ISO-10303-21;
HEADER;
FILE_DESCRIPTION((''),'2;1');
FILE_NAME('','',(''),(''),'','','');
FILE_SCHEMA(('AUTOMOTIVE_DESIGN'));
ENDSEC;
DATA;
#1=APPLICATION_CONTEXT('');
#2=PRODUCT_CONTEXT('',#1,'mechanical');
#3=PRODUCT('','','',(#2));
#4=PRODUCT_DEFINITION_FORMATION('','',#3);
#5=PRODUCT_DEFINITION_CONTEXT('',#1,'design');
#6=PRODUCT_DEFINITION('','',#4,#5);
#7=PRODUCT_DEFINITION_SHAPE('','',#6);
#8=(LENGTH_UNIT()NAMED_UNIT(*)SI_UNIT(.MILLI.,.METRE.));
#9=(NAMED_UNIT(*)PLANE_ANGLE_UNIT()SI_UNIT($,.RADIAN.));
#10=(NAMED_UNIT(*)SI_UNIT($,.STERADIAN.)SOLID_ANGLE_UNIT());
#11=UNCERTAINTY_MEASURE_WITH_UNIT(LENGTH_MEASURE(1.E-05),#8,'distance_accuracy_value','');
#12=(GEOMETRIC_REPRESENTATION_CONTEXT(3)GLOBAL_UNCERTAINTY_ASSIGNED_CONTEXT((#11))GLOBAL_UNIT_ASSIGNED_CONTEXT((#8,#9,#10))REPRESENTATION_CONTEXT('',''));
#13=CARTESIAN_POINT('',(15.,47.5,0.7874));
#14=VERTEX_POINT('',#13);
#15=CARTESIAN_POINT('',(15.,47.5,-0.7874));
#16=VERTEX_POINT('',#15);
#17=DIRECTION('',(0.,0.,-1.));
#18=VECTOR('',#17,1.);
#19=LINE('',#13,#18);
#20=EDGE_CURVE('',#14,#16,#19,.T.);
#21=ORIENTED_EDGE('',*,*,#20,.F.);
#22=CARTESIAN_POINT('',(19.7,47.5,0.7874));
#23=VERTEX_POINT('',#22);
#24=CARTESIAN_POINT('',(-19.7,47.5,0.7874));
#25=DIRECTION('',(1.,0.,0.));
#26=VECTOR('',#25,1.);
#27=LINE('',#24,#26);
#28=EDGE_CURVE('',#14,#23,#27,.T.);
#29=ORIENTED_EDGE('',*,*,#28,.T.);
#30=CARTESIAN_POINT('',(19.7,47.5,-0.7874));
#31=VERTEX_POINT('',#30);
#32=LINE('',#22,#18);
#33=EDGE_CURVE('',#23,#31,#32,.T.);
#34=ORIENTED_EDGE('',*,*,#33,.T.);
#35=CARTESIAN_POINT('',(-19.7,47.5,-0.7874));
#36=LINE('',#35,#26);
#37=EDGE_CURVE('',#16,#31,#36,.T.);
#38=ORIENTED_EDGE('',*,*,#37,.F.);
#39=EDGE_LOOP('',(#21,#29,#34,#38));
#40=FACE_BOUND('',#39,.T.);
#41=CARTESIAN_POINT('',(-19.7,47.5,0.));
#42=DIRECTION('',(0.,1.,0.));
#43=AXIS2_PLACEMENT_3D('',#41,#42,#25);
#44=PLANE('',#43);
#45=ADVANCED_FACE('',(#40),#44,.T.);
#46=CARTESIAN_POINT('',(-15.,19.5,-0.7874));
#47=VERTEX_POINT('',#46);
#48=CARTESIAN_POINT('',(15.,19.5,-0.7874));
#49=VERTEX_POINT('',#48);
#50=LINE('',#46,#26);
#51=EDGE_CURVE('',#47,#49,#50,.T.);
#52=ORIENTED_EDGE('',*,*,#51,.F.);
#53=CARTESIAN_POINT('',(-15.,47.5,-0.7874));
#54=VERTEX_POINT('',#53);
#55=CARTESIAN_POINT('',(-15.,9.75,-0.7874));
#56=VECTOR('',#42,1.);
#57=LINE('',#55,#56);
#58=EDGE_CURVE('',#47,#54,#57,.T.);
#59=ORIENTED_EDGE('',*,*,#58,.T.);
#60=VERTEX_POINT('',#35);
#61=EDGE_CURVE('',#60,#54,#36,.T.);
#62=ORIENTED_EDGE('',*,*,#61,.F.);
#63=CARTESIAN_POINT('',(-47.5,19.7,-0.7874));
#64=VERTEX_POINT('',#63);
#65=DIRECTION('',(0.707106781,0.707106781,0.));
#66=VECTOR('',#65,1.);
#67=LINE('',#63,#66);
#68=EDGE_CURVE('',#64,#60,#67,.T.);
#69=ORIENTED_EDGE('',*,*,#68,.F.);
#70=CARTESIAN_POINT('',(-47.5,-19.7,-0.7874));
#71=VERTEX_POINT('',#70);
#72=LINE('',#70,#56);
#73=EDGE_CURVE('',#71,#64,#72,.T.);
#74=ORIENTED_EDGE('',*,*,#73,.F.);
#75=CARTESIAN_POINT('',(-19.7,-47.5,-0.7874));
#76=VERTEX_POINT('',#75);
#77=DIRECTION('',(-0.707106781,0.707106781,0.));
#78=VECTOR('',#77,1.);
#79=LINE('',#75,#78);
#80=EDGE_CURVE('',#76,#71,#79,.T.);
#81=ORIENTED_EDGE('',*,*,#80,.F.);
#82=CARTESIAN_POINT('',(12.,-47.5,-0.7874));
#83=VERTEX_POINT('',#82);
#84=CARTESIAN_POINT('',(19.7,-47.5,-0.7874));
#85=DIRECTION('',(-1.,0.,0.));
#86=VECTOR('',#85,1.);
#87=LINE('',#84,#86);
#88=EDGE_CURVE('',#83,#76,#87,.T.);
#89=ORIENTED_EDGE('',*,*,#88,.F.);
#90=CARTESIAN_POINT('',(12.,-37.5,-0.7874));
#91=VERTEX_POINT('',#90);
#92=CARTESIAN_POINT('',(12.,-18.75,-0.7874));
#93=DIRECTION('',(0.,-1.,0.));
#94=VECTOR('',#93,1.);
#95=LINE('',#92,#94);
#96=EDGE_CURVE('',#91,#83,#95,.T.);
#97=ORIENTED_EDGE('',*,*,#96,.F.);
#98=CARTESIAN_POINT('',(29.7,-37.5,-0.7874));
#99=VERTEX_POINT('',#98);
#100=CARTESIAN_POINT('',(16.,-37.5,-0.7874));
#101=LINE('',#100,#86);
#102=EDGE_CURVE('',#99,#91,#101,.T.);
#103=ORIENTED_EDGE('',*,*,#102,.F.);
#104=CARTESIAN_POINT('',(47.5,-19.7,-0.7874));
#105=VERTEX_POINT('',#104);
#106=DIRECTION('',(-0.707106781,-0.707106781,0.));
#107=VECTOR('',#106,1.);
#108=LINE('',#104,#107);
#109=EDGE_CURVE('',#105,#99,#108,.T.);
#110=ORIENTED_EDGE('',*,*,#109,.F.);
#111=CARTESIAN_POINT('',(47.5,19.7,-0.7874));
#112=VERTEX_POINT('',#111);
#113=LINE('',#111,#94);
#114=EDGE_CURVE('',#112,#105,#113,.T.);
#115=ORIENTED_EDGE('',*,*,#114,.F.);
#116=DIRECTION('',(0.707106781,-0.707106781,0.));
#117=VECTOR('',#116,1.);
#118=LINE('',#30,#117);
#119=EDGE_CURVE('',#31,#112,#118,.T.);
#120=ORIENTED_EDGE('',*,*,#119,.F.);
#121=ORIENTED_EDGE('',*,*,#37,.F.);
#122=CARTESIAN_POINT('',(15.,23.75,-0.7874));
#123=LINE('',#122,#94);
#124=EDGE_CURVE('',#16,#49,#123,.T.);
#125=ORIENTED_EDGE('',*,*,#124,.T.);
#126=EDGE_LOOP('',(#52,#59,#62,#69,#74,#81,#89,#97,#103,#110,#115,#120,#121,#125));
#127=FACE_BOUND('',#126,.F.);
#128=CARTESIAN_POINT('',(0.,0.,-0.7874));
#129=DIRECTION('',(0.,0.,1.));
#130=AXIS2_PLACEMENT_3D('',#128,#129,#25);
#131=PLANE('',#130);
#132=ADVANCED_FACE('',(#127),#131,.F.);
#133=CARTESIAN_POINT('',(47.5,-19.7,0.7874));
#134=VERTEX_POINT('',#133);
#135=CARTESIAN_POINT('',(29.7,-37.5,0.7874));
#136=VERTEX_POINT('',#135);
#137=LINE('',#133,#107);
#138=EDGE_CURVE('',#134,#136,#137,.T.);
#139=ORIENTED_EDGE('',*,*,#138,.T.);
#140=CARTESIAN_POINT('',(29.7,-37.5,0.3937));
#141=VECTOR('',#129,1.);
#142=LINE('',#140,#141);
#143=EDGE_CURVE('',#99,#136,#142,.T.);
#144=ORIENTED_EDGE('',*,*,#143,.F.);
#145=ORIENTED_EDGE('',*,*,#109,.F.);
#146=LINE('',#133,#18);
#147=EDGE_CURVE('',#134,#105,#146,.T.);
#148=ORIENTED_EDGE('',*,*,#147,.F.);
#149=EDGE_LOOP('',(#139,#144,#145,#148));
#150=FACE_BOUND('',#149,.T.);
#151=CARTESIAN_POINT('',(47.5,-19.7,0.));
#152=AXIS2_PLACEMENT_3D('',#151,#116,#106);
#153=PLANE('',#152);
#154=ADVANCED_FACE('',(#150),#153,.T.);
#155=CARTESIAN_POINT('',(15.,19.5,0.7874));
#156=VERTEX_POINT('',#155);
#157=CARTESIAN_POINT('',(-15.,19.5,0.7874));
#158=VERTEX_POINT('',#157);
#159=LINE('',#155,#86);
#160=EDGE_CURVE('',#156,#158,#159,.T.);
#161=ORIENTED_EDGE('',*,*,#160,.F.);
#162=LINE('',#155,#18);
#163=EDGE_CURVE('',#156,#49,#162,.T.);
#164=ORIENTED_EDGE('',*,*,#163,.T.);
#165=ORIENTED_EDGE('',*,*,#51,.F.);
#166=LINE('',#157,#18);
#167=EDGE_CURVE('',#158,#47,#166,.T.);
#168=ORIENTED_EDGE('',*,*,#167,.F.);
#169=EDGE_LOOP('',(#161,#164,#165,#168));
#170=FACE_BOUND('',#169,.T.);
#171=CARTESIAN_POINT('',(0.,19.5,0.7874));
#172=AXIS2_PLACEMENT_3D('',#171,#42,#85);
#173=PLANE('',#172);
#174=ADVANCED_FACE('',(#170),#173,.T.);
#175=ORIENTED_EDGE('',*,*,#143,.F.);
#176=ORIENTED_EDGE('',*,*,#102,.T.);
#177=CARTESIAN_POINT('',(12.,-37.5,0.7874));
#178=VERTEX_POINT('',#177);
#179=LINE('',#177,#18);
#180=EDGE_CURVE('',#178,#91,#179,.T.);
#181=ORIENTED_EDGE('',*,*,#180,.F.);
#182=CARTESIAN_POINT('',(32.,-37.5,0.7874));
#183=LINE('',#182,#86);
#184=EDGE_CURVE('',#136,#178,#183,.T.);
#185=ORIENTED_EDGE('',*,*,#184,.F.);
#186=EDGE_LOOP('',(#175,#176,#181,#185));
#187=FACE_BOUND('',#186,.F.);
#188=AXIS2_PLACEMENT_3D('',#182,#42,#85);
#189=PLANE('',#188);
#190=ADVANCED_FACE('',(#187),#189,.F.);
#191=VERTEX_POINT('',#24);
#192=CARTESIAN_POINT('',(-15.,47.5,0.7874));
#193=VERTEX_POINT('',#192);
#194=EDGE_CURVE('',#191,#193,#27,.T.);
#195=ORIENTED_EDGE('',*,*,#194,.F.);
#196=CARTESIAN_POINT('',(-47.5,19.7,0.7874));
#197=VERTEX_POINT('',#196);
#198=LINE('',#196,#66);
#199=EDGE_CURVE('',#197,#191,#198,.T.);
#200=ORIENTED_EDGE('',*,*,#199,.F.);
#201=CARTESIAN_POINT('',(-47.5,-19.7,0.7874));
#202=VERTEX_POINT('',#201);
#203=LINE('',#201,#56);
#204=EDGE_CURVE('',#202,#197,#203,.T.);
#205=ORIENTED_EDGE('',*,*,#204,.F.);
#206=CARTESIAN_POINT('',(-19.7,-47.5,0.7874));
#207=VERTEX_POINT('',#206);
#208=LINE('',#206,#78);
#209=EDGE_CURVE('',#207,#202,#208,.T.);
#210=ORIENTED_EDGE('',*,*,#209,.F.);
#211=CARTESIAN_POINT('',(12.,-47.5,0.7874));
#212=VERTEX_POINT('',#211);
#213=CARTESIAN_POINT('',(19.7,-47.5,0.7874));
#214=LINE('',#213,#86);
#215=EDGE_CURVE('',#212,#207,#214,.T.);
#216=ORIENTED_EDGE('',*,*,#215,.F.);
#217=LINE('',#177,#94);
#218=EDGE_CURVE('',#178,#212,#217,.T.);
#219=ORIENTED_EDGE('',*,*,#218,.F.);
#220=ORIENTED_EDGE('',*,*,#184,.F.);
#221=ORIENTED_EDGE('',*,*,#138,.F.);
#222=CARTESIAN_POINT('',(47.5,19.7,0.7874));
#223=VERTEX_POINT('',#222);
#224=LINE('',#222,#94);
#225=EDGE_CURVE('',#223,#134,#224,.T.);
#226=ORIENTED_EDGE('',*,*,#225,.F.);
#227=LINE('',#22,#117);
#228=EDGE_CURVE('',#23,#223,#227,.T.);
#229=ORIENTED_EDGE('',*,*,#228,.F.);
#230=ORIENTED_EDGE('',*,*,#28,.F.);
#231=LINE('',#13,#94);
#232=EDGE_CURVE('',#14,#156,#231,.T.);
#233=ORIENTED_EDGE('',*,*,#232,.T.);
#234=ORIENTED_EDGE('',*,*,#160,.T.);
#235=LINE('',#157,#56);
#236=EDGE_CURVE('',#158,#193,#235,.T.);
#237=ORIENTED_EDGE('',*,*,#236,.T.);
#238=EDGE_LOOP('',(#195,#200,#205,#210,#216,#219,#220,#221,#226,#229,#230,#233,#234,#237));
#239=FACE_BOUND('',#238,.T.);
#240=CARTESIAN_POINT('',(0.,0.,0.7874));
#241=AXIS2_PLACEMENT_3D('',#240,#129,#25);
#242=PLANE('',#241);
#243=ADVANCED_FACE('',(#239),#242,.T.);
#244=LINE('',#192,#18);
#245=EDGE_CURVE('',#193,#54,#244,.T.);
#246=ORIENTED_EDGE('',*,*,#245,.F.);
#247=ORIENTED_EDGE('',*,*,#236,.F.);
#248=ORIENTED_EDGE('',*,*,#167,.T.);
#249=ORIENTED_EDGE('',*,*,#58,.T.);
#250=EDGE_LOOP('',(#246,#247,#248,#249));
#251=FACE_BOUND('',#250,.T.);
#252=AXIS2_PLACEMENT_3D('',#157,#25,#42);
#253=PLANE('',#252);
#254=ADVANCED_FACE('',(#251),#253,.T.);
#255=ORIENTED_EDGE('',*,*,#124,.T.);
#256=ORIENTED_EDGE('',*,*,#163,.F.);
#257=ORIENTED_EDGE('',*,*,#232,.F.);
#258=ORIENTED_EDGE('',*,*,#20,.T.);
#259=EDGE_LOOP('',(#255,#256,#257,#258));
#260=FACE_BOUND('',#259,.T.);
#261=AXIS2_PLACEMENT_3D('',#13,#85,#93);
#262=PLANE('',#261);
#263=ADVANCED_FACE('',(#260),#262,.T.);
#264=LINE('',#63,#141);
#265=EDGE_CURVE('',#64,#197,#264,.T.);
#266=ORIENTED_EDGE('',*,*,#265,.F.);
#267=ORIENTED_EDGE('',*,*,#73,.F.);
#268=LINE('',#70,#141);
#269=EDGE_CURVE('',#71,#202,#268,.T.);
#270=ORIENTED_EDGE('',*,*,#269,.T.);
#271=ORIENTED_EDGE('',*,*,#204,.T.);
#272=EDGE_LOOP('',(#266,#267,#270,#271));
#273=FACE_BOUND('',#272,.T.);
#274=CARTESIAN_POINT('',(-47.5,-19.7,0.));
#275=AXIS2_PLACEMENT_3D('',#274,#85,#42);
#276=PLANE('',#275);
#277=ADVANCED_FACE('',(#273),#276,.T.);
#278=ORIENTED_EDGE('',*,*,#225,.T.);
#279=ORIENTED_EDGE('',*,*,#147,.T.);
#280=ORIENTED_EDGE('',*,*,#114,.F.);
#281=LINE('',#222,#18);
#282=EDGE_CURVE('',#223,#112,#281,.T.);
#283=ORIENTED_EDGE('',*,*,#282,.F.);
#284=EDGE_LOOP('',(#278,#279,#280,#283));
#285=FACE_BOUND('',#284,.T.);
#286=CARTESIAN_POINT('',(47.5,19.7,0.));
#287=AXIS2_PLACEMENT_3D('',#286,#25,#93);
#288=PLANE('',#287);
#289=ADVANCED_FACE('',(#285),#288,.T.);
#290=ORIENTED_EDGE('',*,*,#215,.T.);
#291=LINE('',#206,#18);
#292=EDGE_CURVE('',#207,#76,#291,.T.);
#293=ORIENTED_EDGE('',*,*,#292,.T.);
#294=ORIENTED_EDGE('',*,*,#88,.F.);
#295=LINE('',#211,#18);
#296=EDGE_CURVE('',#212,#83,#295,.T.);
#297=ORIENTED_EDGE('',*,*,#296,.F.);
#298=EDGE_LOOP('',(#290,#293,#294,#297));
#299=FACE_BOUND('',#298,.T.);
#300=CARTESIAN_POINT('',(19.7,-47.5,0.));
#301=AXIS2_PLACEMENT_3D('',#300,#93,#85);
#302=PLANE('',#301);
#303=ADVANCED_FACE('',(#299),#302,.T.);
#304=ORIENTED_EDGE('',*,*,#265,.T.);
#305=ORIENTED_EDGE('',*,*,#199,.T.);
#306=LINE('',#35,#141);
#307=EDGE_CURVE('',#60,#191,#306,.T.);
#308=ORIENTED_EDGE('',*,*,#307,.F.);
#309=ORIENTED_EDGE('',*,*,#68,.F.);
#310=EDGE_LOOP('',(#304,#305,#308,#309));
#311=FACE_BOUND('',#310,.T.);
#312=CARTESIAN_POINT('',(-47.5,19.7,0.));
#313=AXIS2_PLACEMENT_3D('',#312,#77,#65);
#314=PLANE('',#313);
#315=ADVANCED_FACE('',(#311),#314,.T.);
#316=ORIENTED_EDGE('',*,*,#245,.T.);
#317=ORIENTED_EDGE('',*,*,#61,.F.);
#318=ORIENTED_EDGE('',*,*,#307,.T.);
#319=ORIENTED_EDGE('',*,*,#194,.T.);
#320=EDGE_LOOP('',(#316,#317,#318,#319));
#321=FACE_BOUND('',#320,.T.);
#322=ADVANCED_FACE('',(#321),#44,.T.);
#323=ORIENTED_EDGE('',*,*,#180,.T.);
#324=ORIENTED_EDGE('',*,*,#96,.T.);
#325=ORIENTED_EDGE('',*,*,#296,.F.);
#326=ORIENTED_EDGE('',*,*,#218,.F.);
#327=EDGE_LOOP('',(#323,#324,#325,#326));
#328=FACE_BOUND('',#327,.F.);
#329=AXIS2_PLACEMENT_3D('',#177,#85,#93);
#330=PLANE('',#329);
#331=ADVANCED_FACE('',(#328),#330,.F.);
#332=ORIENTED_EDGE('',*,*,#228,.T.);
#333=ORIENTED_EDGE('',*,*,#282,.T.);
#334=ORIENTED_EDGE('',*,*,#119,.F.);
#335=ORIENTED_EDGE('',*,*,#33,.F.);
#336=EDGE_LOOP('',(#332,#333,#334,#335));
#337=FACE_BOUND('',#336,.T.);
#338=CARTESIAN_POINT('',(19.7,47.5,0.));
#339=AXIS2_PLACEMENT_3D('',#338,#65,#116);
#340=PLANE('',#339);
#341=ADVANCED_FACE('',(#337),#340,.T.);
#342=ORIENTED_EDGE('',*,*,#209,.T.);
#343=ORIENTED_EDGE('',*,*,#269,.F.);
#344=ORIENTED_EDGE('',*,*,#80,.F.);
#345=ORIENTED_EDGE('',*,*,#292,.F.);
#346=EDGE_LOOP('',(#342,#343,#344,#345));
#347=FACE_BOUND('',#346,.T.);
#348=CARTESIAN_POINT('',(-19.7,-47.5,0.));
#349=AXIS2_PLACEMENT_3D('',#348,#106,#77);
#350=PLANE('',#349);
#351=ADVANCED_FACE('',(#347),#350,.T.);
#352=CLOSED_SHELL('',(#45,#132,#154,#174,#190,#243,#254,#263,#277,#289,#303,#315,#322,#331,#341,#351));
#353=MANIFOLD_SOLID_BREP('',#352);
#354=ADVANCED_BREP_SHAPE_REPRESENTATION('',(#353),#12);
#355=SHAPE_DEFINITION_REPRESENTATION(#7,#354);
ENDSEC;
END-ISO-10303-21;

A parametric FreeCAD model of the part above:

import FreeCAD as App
import Part
import Sketcher

V = App.Vector
Q = App.Units.Quantity


def add_polygon(sketch, points):
    """Adds a closed chain of lines whose ends are joined by coincident constraints."""
    first, n = sketch.GeometryCount, len(points)
    for a, b in zip(points, points[1:] + points[:1]):
        sketch.addGeometry(Part.LineSegment(App.Vector(*a, 0), App.Vector(*b, 0)), False)
    for i in range(n):
        sketch.addConstraint(Sketcher.Constraint("Coincident", first + i, 2, first + (i + 1) % n, 1))

doc = App.newDocument("Part")
body = doc.addObject("PartDesign::Body", "Body")

# Sketch on XY plane
sketch1 = body.newObject("Sketcher::SketchObject", "Sketch")
sketch1.AttachmentSupport = (doc.getObject("XY_Plane"), [""])
sketch1.MapMode = "FlatFace"
add_polygon(sketch1, [(20, 48), (-20, 48), (-48, 20), (-48, -20), (-20, -48), (20, -48), (48, -20), (48, 20)])  # lines 0-7
sketch1.addConstraint([
    Sketcher.Constraint("Horizontal", 0),
    Sketcher.Constraint("Vertical", 2),
    Sketcher.Constraint("Horizontal", 4),
    Sketcher.Constraint("Vertical", 6),
    Sketcher.Constraint("Symmetric", 0, 2, 4, 2, -1, 1),
    Sketcher.Constraint("Symmetric", 1, 2, 5, 2, -1, 1),
    Sketcher.Constraint("Perpendicular", 1, 3),
    Sketcher.Constraint("Perpendicular", 5, 7),
    Sketcher.Constraint("Horizontal", 2, 2, 5, 2),
    Sketcher.Constraint("Horizontal", 1, 2, 6, 2),
    Sketcher.Constraint("Vertical", 0, 2, 3, 2),
    Sketcher.Constraint("Equal", 4, 2),
    Sketcher.Constraint("DistanceY", 3, 2, 0, 2, Q("95 mm")),
    Sketcher.Constraint("DistanceX", 1, 2, 0, 2, Q("27.8 mm")),
])
pad1 = body.newObject("PartDesign::Pad", "Pad")
pad1.Profile = sketch1
pad1.Length = 1.5748
pad1.Midplane = True

# Sketch on XY plane
sketch2 = body.newObject("Sketcher::SketchObject", "Sketch001")
sketch2.AttachmentSupport = (doc.getObject("XY_Plane"), [""])
sketch2.MapMode = "FlatFace"
sketch2.AttachmentOffset = App.Placement(V(0, 0, 0.7874), App.Rotation())
add_polygon(sketch2, [(15, 48), (-15, 48), (-15, 20), (15, 20)])  # lines 0-3
sketch2.addConstraint([
    Sketcher.Constraint("Horizontal", 0),
    Sketcher.Constraint("Vertical", 1),
    Sketcher.Constraint("Horizontal", 2),
    Sketcher.Constraint("Vertical", 3),
    Sketcher.Constraint("DistanceX", 0, 2, 0, 1, Q("30 mm")),
    Sketcher.Constraint("DistanceY", 1, 2, 1, 1, Q("28 mm")),
    Sketcher.Constraint("DistanceX", 0, 2, -1, 1, Q("15 mm")),
    Sketcher.Constraint("DistanceY", -1, 1, 0, 2, Q("47.5 mm")),
])
pocket1 = body.newObject("PartDesign::Pocket", "Pocket")
pocket1.Profile = sketch2
pocket1.Type = "ThroughAll"

# Sketch on XY plane
sketch3 = body.newObject("Sketcher::SketchObject", "Sketch002")
sketch3.AttachmentSupport = (doc.getObject("XY_Plane"), [""])
sketch3.MapMode = "FlatFace"
sketch3.AttachmentOffset = App.Placement(V(0, 0, 0.7874), App.Rotation())
add_polygon(sketch3, [(12, -48), (32, -48), (32, -38), (12, -38)])  # lines 0-3
sketch3.addConstraint([
    Sketcher.Constraint("Horizontal", 0),
    Sketcher.Constraint("Vertical", 1),
    Sketcher.Constraint("Horizontal", 2),
    Sketcher.Constraint("Vertical", 3),
    Sketcher.Constraint("DistanceY", 1, 1, 1, 2, Q("10 mm")),
    Sketcher.Constraint("DistanceX", -1, 1, 0, 2, Q("32 mm")),
    Sketcher.Constraint("DistanceX", -1, 1, 2, 2, Q("12 mm")),
    Sketcher.Constraint("DistanceY", 0, 2, -1, 1, Q("47.5 mm")),
])
pocket2 = body.newObject("PartDesign::Pocket", "Pocket001")
pocket2.Profile = sketch3
pocket2.Type = "ThroughAll"

doc.recompute()
